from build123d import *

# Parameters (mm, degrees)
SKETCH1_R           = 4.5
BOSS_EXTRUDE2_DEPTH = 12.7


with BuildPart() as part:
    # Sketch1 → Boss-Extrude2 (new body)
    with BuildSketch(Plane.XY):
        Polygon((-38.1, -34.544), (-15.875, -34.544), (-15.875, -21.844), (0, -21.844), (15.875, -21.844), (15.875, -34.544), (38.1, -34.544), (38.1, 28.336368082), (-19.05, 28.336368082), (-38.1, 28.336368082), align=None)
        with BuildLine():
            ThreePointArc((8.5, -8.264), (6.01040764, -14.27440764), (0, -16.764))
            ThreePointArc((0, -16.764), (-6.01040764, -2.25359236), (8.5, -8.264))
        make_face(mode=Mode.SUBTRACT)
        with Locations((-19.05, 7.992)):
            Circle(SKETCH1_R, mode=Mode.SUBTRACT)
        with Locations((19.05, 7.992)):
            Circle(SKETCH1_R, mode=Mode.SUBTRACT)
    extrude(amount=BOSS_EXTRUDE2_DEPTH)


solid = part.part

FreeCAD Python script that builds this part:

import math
import FreeCAD as App
import Part
import Sketcher
from FreeCAD import Vector
Q = App.Units.Quantity


def add_polygon(sketch, points):
    """Adds a closed chain of lines whose ends are joined by coincident constraints."""
    first, n = sketch.GeometryCount, len(points)
    for a, b in zip(points, points[1:] + points[:1]):
        sketch.addGeometry(Part.LineSegment(App.Vector(*a, 0), App.Vector(*b, 0)), False)
    for i in range(n):
        sketch.addConstraint(Sketcher.Constraint("Coincident", first + i, 2, first + (i + 1) % n, 1))

doc = App.newDocument("Part")
body = doc.addObject("PartDesign::Body", "Body")

sketch1 = body.newObject("Sketcher::SketchObject", "Sketch")
sketch1.AttachmentSupport = (doc.getObject("XY_Plane"), [""])
sketch1.MapMode = "FlatFace"
add_polygon(sketch1, [(-38.1, -34.544), (-15.875, -34.544), (-15.875, -21.844), (15.875, -21.844), (15.875, -34.544), (38.1, -34.544), (38.1, 28.336368), (-38.1, 28.336368)])
sketch1.addGeometry(Part.ArcOfCircle(Part.Circle(Vector(0, -8.264, 0), Vector(0, 0, 1), 8.5), math.radians(0), math.radians(270)), False)
sketch1.addGeometry(Part.ArcOfCircle(Part.Circle(Vector(0, -8.264, 0), Vector(0, 0, 1), 8.5), math.radians(-90), math.radians(0)), False)
sketch1.addGeometry(Part.Circle(Vector(-19.05, 7.992, 0), Vector(0, 0, 1), 4.5), False)
sketch1.addGeometry(Part.Circle(Vector(19.05, 7.992, 0), Vector(0, 0, 1), 4.5), False)
sketch1.addConstraint([
    Sketcher.Constraint("Tangent", 8, 1, 9, 2),
    Sketcher.Constraint("Coincident", 9, 1, 8, 2),
    Sketcher.Constraint("Horizontal", 0),
    Sketcher.Constraint("Vertical", 1),
    Sketcher.Constraint("Horizontal", 2),
    Sketcher.Constraint("Vertical", 3),
    Sketcher.Constraint("Horizontal", 4),
    Sketcher.Constraint("Vertical", 5),
    Sketcher.Constraint("Horizontal", 6),
    Sketcher.Constraint("Vertical", 7),
    Sketcher.Constraint("Equal", 10, 11),
    Sketcher.Constraint("Symmetric", 10, 3, 11, 3, -2),
    Sketcher.Constraint("Symmetric", 0, 2, 3, 2, -2),
    Sketcher.Constraint("PointOnObject", 8, 3, -2),
    Sketcher.Constraint("PointOnObject", 9, 1, -2),
    Sketcher.Constraint("Horizontal", 9, 3, 8, 1),
    Sketcher.Constraint("Equal", 0, 4),
    Sketcher.Constraint("DistanceX", 6, 2, 6, 1, Q("3 in")),
    Sketcher.Constraint("DistanceY", 1, 1, 1, 2, Q("0.5 in")),
    Sketcher.Constraint("DistanceX", 2, 1, 2, 2, Q("1.25 in")),
    Sketcher.Constraint("DistanceX", 10, 3, 11, 3, Q("1.5 in")),
    Sketcher.Constraint("DistanceY", 1, 2, 9, 1, Q("0.2 in")),
    Sketcher.Constraint("Diameter", 10, Q("9 mm")),
    Sketcher.Constraint("DistanceY", 0, 2, -1, 1, Q("1.36 in")),
    Sketcher.Constraint("Radius", 8, Q("8.5 mm")),
    Sketcher.Constraint("DistanceY", 8, 3, 10, 3, Q("0.64 in")),
    Sketcher.Constraint("DistanceY", 5, 1, 5, 2, Q("62.880368 mm")),
])
pad1 = body.newObject("PartDesign::Pad", "Pad")
pad1.Profile = sketch1
pad1.Length = Q("0.5 in")

doc.recompute()
